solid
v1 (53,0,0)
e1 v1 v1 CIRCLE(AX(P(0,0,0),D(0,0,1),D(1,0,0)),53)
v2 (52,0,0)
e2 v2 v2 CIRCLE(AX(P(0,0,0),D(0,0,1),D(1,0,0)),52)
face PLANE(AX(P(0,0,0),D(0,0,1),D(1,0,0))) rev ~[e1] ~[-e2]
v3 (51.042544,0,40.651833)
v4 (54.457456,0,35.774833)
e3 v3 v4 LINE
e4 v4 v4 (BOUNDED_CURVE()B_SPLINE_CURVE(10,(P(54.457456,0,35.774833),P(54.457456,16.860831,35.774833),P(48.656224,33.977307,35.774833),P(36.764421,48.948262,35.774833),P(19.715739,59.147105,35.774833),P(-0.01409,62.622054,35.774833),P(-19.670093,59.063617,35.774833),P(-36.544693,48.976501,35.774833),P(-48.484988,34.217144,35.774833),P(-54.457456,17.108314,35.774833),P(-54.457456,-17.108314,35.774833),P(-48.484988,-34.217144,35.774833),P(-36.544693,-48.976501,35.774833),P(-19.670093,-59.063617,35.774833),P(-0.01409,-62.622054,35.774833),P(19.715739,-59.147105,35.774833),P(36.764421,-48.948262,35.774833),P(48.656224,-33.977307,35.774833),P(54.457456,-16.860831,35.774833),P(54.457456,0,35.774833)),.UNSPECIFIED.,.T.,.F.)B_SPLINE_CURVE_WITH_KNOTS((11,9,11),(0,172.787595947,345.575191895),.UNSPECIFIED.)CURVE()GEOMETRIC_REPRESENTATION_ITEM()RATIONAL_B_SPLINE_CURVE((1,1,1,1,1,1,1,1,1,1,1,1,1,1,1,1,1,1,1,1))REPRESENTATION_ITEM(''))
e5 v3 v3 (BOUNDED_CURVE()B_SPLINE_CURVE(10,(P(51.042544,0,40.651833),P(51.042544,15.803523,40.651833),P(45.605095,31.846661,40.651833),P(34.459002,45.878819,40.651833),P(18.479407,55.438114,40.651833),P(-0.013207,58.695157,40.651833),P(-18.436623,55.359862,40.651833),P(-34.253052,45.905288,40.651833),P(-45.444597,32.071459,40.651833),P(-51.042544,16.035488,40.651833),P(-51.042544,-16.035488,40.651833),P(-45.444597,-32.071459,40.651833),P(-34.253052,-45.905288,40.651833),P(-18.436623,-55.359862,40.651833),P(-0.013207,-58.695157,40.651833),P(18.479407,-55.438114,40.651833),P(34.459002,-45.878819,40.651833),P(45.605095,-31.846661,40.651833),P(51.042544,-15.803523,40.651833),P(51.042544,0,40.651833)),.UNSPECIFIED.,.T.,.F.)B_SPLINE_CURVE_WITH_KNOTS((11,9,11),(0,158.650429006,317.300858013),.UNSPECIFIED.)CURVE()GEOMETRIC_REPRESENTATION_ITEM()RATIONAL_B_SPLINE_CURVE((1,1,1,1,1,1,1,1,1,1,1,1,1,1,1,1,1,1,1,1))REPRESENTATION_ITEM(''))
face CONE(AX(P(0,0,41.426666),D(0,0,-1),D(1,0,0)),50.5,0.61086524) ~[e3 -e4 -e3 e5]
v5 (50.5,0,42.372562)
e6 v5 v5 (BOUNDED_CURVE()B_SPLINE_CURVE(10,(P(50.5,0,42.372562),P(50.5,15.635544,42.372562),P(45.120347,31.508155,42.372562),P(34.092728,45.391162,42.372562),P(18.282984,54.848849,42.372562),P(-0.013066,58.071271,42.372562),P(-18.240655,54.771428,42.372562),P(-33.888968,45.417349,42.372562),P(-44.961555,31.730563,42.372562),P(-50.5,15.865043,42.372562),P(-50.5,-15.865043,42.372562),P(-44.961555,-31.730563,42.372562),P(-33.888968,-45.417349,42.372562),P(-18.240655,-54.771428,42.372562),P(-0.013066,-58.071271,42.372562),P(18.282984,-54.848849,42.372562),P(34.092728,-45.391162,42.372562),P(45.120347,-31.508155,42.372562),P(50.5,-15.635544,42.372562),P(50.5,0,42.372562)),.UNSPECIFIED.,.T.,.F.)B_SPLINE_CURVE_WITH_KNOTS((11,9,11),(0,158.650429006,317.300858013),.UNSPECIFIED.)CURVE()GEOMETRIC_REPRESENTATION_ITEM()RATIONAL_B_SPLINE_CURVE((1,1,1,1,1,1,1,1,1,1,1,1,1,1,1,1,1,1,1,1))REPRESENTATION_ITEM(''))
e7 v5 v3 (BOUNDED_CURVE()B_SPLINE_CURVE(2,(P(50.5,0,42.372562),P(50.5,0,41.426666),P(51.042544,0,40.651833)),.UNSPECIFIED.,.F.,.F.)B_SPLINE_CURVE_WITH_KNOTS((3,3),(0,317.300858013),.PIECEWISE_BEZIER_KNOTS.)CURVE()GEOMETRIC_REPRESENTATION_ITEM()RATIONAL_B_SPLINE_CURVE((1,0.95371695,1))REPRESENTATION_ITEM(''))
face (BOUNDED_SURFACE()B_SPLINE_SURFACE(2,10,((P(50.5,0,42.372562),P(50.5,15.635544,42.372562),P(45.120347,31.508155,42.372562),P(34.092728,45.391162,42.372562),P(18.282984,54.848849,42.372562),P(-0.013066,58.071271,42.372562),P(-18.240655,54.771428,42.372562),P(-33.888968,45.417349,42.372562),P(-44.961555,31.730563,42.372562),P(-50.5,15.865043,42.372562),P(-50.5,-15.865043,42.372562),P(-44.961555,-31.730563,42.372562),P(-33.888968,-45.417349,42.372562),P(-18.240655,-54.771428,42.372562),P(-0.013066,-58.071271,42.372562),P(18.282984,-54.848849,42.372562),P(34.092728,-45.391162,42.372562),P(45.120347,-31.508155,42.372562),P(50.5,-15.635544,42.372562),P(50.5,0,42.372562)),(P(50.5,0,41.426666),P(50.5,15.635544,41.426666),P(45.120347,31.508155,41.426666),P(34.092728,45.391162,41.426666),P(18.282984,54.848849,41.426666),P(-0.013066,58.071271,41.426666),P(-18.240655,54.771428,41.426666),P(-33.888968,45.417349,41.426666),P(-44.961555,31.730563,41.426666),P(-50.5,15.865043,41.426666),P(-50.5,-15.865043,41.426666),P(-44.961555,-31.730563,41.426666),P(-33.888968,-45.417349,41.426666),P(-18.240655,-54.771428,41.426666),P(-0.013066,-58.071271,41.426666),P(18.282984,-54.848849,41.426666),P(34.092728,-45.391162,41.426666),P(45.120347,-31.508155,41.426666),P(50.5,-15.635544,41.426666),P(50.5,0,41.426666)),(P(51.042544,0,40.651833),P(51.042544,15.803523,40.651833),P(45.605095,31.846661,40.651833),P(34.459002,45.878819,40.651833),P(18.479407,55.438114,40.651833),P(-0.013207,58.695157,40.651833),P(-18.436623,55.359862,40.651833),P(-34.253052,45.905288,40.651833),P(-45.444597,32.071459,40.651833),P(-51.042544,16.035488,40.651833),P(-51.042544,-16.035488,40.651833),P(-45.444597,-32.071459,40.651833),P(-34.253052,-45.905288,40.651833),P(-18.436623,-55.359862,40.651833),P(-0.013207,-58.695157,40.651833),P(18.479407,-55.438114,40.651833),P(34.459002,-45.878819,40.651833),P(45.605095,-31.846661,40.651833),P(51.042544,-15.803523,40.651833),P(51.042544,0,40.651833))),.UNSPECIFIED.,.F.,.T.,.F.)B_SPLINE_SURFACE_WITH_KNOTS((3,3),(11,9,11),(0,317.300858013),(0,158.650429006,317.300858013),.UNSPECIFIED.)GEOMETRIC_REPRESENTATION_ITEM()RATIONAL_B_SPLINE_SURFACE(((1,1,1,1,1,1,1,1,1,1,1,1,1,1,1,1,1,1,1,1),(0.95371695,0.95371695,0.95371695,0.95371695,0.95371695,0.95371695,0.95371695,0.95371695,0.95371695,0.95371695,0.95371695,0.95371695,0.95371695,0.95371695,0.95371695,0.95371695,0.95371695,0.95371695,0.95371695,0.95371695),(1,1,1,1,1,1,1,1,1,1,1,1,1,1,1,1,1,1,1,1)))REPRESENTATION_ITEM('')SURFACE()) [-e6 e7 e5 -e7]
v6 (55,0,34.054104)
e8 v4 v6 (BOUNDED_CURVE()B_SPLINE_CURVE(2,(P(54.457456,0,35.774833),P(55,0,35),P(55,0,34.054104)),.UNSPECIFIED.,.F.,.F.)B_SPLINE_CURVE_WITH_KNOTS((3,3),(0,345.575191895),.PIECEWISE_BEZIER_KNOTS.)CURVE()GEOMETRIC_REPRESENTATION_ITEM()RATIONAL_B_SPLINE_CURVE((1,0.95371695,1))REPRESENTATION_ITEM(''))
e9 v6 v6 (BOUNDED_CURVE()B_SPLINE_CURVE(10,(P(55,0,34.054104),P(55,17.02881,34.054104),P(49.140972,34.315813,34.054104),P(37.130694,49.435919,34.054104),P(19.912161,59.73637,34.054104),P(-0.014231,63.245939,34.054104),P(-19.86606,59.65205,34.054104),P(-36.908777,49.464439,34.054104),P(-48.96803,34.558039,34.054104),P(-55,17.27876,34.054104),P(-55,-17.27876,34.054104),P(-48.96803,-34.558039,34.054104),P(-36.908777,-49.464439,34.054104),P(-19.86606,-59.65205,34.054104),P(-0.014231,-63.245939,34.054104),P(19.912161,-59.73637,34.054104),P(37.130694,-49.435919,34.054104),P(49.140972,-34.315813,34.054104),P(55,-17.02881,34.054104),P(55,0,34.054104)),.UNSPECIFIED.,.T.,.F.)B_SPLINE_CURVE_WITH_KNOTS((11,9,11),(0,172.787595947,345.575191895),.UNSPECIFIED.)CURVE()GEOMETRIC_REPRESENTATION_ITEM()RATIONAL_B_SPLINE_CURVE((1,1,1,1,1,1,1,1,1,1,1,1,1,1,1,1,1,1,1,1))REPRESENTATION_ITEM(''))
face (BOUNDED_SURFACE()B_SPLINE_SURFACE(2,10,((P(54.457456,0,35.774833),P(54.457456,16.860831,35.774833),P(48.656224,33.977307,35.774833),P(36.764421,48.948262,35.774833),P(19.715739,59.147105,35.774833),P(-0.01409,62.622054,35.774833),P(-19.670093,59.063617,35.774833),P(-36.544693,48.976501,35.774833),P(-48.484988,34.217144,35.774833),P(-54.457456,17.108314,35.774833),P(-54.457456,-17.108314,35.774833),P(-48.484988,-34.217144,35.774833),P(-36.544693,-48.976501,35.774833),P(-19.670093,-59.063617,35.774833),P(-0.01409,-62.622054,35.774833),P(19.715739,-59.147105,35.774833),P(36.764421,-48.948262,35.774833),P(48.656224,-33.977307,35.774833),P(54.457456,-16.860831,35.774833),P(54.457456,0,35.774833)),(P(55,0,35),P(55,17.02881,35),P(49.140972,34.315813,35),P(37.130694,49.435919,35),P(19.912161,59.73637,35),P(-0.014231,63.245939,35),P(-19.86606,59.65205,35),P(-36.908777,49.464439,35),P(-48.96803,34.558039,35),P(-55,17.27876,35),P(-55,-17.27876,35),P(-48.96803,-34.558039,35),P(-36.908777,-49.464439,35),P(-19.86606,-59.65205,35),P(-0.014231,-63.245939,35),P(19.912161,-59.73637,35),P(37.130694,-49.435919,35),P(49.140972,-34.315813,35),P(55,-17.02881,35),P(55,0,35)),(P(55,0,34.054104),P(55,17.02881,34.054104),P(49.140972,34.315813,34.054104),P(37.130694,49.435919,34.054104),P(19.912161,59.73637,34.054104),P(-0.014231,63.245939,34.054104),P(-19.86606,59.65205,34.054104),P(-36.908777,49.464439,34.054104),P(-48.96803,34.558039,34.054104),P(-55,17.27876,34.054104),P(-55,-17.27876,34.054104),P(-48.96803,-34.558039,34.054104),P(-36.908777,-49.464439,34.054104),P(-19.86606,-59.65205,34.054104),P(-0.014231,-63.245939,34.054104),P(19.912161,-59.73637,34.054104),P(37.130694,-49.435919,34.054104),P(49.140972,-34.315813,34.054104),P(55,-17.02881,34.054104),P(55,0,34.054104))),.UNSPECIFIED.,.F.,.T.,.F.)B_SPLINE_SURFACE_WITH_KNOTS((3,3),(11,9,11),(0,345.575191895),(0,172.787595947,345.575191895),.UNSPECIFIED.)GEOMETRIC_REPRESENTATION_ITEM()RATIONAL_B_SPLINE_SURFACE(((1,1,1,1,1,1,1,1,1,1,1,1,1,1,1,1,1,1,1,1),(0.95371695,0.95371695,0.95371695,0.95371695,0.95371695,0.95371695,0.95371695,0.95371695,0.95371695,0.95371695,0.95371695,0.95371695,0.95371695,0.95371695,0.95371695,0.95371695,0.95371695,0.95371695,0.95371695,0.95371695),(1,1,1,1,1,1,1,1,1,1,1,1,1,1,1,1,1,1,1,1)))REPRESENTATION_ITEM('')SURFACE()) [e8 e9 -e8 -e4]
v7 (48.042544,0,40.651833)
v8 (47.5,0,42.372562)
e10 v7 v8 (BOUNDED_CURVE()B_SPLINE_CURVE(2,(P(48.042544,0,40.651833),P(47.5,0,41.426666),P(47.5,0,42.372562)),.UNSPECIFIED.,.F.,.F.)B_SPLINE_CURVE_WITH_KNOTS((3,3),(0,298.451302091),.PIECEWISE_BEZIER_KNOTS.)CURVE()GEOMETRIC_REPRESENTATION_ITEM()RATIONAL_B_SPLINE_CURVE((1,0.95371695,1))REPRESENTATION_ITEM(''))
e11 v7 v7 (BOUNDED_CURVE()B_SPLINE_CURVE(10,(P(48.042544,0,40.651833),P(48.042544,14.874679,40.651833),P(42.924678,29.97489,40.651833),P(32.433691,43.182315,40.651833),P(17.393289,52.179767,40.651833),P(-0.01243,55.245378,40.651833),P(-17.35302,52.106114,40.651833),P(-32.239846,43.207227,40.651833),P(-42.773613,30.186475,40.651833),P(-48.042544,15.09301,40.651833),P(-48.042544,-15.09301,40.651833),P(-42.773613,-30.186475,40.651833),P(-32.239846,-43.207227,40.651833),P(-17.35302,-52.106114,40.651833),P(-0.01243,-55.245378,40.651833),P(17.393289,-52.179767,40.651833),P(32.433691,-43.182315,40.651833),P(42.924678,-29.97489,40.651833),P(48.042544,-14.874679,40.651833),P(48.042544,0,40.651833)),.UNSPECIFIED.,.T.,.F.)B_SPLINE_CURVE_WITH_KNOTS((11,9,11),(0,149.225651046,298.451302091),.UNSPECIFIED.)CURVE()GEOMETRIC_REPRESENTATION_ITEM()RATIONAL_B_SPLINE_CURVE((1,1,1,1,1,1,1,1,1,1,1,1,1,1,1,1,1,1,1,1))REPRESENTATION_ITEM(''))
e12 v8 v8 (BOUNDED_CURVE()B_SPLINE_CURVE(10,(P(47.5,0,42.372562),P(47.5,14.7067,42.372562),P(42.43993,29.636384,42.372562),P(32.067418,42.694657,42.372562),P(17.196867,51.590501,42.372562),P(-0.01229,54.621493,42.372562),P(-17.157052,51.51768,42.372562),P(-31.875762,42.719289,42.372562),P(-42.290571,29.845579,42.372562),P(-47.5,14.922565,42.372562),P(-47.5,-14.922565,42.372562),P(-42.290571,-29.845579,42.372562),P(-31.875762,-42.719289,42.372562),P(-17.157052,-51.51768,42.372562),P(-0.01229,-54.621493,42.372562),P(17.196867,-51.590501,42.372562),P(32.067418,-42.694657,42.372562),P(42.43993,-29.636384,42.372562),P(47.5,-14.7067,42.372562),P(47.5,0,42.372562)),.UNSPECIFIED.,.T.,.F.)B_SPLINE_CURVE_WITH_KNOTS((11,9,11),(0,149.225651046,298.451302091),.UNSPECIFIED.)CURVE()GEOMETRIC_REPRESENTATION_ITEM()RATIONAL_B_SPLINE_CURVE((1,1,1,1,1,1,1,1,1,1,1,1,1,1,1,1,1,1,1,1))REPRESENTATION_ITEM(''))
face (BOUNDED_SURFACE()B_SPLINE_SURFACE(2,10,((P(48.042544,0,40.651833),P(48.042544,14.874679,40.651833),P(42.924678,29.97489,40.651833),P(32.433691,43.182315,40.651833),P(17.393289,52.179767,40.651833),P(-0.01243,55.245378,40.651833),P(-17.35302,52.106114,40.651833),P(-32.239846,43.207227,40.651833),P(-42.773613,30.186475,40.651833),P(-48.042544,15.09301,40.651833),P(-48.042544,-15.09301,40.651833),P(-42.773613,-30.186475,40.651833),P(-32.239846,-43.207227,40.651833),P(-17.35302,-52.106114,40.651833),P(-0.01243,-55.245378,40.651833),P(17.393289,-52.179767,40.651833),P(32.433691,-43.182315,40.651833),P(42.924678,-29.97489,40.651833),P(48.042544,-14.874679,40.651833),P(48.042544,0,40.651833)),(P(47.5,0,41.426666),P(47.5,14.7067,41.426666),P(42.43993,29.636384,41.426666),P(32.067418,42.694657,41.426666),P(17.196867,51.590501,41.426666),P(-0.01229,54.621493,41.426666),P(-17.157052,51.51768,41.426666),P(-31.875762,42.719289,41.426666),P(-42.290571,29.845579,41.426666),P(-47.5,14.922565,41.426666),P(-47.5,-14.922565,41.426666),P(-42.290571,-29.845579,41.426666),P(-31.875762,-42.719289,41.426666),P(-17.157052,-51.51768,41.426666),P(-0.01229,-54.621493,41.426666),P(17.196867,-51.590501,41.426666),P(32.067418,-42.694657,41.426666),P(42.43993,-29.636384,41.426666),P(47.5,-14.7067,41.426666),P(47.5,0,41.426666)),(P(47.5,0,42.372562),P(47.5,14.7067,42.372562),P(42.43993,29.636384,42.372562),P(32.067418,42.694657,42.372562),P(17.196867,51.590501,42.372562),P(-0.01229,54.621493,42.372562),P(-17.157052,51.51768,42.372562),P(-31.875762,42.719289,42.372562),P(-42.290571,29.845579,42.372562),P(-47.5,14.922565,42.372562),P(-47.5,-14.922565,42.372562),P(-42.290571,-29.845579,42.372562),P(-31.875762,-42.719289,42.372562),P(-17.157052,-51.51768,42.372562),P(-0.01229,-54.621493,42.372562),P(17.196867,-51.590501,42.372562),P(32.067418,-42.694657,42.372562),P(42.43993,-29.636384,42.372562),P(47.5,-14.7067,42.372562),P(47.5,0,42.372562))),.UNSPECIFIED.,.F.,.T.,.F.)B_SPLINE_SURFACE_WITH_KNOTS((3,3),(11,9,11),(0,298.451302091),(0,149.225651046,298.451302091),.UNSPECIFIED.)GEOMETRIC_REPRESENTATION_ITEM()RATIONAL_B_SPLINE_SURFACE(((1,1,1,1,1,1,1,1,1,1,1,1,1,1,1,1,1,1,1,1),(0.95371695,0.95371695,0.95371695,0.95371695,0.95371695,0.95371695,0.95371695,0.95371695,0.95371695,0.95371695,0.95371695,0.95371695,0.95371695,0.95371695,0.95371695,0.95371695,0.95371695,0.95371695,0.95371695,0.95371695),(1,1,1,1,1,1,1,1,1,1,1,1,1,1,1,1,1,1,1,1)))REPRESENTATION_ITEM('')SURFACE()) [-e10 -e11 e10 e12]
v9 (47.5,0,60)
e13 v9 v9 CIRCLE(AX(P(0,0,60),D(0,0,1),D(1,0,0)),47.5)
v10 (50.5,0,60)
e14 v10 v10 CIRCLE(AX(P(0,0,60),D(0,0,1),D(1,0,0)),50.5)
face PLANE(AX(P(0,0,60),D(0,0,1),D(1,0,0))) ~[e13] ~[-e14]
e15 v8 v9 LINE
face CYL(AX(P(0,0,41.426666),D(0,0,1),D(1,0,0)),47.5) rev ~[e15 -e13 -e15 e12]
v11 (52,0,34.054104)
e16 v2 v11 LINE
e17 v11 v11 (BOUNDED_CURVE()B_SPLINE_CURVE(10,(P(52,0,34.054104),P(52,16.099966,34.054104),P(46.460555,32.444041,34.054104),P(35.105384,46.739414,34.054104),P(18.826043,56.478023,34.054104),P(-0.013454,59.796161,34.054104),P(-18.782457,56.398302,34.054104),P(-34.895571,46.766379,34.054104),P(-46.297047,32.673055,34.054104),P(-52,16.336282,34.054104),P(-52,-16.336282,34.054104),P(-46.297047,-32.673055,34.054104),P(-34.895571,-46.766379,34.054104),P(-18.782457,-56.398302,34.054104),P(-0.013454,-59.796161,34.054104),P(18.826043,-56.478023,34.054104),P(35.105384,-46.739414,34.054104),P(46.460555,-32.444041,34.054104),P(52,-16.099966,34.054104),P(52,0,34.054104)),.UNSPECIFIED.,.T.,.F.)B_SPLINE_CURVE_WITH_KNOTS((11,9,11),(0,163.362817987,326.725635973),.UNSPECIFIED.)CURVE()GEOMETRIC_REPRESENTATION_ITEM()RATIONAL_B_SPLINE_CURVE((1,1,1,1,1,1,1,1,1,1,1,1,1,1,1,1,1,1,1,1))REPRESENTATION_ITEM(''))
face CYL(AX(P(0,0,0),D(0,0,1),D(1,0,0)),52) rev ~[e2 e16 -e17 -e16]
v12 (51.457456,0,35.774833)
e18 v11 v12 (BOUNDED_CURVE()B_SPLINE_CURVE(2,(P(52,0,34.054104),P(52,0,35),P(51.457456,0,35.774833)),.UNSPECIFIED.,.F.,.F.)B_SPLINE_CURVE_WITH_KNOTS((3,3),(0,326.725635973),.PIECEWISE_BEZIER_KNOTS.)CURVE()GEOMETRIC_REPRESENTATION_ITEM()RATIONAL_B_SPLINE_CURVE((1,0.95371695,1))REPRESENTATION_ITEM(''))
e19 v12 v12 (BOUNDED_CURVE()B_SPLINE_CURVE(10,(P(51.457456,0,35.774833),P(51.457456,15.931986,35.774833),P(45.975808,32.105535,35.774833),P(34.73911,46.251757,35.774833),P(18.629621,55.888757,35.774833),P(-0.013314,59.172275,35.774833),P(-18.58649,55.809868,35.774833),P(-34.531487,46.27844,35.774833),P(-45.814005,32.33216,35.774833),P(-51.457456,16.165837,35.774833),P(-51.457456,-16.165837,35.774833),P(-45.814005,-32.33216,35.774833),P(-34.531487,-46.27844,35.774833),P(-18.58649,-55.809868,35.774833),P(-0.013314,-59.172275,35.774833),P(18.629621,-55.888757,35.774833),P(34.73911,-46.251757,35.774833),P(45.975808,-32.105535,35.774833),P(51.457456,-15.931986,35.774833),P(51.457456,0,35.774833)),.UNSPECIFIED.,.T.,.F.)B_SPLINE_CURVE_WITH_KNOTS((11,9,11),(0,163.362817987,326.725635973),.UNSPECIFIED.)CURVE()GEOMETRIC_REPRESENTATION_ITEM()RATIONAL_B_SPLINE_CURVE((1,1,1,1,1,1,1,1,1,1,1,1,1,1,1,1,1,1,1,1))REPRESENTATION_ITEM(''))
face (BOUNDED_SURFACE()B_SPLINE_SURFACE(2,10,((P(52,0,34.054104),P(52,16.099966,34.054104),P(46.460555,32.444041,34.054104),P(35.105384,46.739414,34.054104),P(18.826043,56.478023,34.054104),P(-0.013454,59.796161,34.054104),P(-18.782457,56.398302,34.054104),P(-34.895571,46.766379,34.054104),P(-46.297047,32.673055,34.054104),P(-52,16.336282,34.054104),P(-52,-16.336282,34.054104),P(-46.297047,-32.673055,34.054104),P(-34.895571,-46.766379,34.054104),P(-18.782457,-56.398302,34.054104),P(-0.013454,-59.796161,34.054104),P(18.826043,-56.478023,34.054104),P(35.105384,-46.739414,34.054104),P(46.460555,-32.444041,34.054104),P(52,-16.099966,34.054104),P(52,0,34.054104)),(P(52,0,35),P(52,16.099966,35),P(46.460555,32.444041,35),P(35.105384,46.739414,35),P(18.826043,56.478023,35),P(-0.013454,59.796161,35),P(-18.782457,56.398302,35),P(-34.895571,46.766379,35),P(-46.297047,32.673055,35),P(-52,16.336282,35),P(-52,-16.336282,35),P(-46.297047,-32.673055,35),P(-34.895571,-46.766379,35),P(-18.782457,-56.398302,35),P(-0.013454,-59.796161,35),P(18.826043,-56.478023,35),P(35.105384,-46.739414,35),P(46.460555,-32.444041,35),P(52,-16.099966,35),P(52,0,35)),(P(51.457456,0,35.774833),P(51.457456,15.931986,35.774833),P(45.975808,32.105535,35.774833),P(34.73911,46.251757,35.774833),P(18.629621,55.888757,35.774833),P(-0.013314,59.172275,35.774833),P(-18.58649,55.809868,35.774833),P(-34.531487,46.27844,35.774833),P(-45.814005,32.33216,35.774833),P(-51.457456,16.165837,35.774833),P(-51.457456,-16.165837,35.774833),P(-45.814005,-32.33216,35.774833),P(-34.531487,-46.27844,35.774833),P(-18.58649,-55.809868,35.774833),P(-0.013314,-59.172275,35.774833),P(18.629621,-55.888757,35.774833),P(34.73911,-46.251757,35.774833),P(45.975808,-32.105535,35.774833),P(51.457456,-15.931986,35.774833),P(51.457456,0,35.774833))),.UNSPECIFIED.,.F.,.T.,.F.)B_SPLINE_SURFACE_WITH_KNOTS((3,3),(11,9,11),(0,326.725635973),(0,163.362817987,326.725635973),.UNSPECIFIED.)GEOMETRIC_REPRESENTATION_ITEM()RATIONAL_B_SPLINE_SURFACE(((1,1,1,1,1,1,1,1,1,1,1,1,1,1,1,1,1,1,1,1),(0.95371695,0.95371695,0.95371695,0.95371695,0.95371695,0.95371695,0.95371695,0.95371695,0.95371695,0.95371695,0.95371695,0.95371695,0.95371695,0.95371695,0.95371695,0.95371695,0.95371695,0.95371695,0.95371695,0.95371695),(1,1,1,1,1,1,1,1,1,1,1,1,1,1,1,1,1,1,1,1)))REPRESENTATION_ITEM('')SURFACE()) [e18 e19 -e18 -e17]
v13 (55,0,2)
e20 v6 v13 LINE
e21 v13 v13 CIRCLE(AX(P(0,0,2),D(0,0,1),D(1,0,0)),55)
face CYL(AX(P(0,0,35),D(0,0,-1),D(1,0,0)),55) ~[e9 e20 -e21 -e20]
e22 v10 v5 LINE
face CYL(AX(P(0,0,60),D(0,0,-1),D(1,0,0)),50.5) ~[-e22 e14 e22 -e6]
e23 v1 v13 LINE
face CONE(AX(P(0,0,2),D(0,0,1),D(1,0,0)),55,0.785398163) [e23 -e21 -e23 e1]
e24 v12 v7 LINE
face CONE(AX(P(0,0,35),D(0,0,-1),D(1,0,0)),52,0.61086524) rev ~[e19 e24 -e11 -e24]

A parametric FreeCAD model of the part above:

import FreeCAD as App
import Part
import Sketcher
Q = App.Units.Quantity


def edges_at(feature, points):
    """Names of the edges that pass closest to the given points."""
    edges = feature.Shape.Edges
    near = lambda p: min(range(len(edges)), key=lambda i: edges[i].distToShape(Part.Vertex(*p))[0])
    return sorted({f"Edge{near(p) + 1}" for p in points})


def add_polygon(sketch, points):
    """Adds a closed chain of lines whose ends are joined by coincident constraints."""
    first, n = sketch.GeometryCount, len(points)
    for a, b in zip(points, points[1:] + points[:1]):
        sketch.addGeometry(Part.LineSegment(App.Vector(*a, 0), App.Vector(*b, 0)), False)
    for i in range(n):
        sketch.addConstraint(Sketcher.Constraint("Coincident", first + i, 2, first + (i + 1) % n, 1))

doc = App.newDocument("Part")
body = doc.addObject("PartDesign::Body", "Body")

sketch1 = body.newObject("Sketcher::SketchObject", "Sketch")
sketch1.AttachmentSupport = (doc.getObject("XZ_Plane"), [""])
sketch1.MapMode = "FlatFace"
add_polygon(sketch1, [(52, 35), (52, 0), (55, 0), (55, 35), (50.5, 41.426666), (50.5, 60), (47.5, 60), (47.5, 41.426666)])
sketch1.addConstraint(Sketcher.Constraint("Vertical", 0))
sketch1.addConstraint(Sketcher.Constraint("Horizontal", 1))
sketch1.addConstraint(Sketcher.Constraint("Vertical", 2))
sketch1.addConstraint(Sketcher.Constraint("Vertical", 4))
sketch1.addConstraint(Sketcher.Constraint("Horizontal", 5))
sketch1.addConstraint(Sketcher.Constraint("Vertical", 6))
sketch1.addConstraint(Sketcher.Constraint("PointOnObject", 0, 2, -1))
sketch1.addConstraint(Sketcher.Constraint("Parallel", 3, 7))
sketch1.addConstraint(Sketcher.Constraint("Horizontal", 3, 2, 6, 2))
sketch1.addConstraint(Sketcher.Constraint("Horizontal", 2, 2, 7, 2))
sketch1.addConstraint(Sketcher.Constraint("DistanceX", 1, 1, 1, 2, Q("3 mm")))
sketch1.addConstraint(Sketcher.Constraint("DistanceY", 0, 2, 0, 1, Q("35 mm")))
sketch1.addConstraint(Sketcher.Constraint("Angle", 3, Q("125 deg")))
sketch1.addConstraint(Sketcher.Constraint("DistanceX", -1, 1, 0, 2, Q("52 mm")))
sketch1.addConstraint(Sketcher.Constraint("DistanceY", -1, 1, 4, 2, Q("60 mm")))
sketch1.addConstraint(Sketcher.Constraint("DistanceX", -1, 1, 3, 2, Q("50.5 mm")))
revolution = body.newObject("PartDesign::Revolution", "Revolution")
revolution.Profile = sketch1
revolution.ReferenceAxis = (sketch1, ["V_Axis"])
revolution.Angle = 360
doc.recompute()

fillet = body.newObject("PartDesign::Fillet", "Fillet")
fillet.Base = (revolution, edges_at(revolution, [
    (-50.5, 0, 41.427),
    (-55, 0, 35),
    (52.75, 0, 38.213),
    (-52, 0, 35),
    (-47.5, 0, 41.427),
    (49.75, 0, 38.213),
]))
fillet.Radius = 3
doc.recompute()

chamfer = body.newObject("PartDesign::Chamfer", "Chamfer")
chamfer.Base = (fillet, edges_at(fillet, [(-55, 0, 0)]))
chamfer.Size = 2

doc.recompute()
